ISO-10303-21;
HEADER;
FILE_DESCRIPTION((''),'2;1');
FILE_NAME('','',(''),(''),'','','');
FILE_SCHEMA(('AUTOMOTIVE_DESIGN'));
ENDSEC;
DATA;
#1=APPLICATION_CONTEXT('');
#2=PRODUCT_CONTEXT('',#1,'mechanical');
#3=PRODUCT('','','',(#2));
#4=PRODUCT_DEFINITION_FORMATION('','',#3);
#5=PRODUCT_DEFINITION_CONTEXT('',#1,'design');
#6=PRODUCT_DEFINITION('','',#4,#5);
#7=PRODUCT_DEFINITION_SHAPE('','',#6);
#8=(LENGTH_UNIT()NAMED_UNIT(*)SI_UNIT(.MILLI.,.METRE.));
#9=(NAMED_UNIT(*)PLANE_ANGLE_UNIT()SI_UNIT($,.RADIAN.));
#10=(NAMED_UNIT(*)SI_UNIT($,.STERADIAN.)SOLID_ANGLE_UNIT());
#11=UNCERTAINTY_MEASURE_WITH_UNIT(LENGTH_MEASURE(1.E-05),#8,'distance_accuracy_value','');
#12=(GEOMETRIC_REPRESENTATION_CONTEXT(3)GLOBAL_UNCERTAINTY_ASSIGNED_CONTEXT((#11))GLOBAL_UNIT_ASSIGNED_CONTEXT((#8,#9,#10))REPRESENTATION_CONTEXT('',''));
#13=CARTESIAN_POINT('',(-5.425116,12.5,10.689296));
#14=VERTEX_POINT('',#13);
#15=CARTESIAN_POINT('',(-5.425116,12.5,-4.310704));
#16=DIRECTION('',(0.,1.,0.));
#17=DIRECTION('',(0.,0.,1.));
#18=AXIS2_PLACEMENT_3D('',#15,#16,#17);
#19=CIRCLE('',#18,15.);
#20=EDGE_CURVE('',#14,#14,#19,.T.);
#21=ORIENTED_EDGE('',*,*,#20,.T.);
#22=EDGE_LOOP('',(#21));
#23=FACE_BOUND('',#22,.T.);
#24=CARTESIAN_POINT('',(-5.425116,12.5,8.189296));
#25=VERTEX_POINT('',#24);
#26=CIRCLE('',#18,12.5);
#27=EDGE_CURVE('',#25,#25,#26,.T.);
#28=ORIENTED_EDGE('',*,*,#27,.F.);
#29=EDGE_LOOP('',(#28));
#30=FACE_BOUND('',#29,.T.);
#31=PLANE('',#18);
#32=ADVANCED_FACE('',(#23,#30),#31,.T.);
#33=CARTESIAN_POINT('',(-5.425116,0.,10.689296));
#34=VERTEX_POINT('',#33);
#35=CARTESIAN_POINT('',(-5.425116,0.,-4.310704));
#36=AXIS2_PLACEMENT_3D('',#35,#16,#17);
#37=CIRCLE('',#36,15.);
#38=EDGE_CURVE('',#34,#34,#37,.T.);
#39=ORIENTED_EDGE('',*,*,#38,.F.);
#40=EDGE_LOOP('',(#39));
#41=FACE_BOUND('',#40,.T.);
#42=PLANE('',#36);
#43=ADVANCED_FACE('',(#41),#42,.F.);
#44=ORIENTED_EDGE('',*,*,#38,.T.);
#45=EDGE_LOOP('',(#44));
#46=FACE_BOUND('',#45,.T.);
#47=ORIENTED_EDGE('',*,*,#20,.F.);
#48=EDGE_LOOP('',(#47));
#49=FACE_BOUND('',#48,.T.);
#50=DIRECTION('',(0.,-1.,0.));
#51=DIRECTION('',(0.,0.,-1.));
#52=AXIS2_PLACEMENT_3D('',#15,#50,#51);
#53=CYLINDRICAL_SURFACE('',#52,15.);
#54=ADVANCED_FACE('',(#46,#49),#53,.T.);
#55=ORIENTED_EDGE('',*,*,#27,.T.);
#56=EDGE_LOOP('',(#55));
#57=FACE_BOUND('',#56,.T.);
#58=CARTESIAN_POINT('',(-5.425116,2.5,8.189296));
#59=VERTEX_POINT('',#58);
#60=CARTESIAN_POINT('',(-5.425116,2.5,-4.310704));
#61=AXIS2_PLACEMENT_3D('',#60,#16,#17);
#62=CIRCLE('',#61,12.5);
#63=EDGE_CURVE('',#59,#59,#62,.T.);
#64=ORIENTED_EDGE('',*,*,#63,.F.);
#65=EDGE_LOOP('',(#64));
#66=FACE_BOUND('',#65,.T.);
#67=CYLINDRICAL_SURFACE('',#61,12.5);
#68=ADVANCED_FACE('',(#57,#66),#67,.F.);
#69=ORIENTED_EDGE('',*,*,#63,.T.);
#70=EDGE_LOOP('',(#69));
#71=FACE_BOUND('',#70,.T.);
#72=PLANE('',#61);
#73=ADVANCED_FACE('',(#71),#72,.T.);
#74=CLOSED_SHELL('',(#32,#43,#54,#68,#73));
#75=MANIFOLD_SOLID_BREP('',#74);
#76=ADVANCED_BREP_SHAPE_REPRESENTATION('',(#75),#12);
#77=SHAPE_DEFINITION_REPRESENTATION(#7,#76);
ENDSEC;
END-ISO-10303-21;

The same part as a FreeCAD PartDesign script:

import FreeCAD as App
import Part
import Sketcher
from FreeCAD import Vector

doc = App.newDocument("Part")
params = doc.addObject("Spreadsheet::Sheet", "Params")
for row, (alias, value) in enumerate([
    ("sketch1_diameter", "30 mm"),
    ("pad1_length", "12.5 mm"),
    ("sketch2_diameter", "25 mm"),
    ("pocket1_length", "10 mm"),
], start=1):
    params.set(f"A{row}", alias)
    params.set(f"B{row}", "=" + value)
    params.setAlias(f"B{row}", alias)

body = doc.addObject("PartDesign::Body", "Body")

sketch1 = body.newObject("Sketcher::SketchObject", "Sketch")
sketch1.AttachmentSupport = (doc.getObject("XZ_Plane"), [""])
sketch1.MapMode = "FlatFace"
sketch1.addGeometry(Part.Circle(Vector(-5, -4, 0), Vector(0, 0, 1), 15), False)
sketch1.addConstraint(Sketcher.Constraint("Diameter", 0, 30.0))
sketch1.addConstraint(Sketcher.Constraint("DistanceX", 0, 3, -1, 1, 5.425116))
sketch1.addConstraint(Sketcher.Constraint("DistanceY", 0, 3, -1, 1, 4.310704))
sketch1.setExpression("Constraints[0]", "Params.sketch1_diameter")
pad1 = body.newObject("PartDesign::Pad", "Pad")
pad1.Profile = sketch1
pad1.setExpression("Length", "Params.pad1_length")
pad1.Reversed = True

sketch2 = body.newObject("Sketcher::SketchObject", "Sketch001")
sketch2.AttachmentSupport = (doc.getObject("XZ_Plane"), [""])
sketch2.MapMode = "FlatFace"
sketch2.AttachmentOffset = App.Placement(Vector(0, 0, -12.5), App.Rotation())
sketch2.addGeometry(Part.Circle(Vector(-5, -4, 0), Vector(0, 0, 1), 12), False)
sketch2.addConstraint(Sketcher.Constraint("Diameter", 0, 25.0))
sketch2.addConstraint(Sketcher.Constraint("DistanceX", 0, 3, -1, 1, 5.425116))
sketch2.addConstraint(Sketcher.Constraint("DistanceY", 0, 3, -1, 1, 4.310704))
sketch2.setExpression("Constraints[0]", "Params.sketch2_diameter")
pocket1 = body.newObject("PartDesign::Pocket", "Pocket")
pocket1.Profile = sketch2
pocket1.setExpression("Length", "Params.pocket1_length")
pocket1.Reversed = True

doc.recompute()
